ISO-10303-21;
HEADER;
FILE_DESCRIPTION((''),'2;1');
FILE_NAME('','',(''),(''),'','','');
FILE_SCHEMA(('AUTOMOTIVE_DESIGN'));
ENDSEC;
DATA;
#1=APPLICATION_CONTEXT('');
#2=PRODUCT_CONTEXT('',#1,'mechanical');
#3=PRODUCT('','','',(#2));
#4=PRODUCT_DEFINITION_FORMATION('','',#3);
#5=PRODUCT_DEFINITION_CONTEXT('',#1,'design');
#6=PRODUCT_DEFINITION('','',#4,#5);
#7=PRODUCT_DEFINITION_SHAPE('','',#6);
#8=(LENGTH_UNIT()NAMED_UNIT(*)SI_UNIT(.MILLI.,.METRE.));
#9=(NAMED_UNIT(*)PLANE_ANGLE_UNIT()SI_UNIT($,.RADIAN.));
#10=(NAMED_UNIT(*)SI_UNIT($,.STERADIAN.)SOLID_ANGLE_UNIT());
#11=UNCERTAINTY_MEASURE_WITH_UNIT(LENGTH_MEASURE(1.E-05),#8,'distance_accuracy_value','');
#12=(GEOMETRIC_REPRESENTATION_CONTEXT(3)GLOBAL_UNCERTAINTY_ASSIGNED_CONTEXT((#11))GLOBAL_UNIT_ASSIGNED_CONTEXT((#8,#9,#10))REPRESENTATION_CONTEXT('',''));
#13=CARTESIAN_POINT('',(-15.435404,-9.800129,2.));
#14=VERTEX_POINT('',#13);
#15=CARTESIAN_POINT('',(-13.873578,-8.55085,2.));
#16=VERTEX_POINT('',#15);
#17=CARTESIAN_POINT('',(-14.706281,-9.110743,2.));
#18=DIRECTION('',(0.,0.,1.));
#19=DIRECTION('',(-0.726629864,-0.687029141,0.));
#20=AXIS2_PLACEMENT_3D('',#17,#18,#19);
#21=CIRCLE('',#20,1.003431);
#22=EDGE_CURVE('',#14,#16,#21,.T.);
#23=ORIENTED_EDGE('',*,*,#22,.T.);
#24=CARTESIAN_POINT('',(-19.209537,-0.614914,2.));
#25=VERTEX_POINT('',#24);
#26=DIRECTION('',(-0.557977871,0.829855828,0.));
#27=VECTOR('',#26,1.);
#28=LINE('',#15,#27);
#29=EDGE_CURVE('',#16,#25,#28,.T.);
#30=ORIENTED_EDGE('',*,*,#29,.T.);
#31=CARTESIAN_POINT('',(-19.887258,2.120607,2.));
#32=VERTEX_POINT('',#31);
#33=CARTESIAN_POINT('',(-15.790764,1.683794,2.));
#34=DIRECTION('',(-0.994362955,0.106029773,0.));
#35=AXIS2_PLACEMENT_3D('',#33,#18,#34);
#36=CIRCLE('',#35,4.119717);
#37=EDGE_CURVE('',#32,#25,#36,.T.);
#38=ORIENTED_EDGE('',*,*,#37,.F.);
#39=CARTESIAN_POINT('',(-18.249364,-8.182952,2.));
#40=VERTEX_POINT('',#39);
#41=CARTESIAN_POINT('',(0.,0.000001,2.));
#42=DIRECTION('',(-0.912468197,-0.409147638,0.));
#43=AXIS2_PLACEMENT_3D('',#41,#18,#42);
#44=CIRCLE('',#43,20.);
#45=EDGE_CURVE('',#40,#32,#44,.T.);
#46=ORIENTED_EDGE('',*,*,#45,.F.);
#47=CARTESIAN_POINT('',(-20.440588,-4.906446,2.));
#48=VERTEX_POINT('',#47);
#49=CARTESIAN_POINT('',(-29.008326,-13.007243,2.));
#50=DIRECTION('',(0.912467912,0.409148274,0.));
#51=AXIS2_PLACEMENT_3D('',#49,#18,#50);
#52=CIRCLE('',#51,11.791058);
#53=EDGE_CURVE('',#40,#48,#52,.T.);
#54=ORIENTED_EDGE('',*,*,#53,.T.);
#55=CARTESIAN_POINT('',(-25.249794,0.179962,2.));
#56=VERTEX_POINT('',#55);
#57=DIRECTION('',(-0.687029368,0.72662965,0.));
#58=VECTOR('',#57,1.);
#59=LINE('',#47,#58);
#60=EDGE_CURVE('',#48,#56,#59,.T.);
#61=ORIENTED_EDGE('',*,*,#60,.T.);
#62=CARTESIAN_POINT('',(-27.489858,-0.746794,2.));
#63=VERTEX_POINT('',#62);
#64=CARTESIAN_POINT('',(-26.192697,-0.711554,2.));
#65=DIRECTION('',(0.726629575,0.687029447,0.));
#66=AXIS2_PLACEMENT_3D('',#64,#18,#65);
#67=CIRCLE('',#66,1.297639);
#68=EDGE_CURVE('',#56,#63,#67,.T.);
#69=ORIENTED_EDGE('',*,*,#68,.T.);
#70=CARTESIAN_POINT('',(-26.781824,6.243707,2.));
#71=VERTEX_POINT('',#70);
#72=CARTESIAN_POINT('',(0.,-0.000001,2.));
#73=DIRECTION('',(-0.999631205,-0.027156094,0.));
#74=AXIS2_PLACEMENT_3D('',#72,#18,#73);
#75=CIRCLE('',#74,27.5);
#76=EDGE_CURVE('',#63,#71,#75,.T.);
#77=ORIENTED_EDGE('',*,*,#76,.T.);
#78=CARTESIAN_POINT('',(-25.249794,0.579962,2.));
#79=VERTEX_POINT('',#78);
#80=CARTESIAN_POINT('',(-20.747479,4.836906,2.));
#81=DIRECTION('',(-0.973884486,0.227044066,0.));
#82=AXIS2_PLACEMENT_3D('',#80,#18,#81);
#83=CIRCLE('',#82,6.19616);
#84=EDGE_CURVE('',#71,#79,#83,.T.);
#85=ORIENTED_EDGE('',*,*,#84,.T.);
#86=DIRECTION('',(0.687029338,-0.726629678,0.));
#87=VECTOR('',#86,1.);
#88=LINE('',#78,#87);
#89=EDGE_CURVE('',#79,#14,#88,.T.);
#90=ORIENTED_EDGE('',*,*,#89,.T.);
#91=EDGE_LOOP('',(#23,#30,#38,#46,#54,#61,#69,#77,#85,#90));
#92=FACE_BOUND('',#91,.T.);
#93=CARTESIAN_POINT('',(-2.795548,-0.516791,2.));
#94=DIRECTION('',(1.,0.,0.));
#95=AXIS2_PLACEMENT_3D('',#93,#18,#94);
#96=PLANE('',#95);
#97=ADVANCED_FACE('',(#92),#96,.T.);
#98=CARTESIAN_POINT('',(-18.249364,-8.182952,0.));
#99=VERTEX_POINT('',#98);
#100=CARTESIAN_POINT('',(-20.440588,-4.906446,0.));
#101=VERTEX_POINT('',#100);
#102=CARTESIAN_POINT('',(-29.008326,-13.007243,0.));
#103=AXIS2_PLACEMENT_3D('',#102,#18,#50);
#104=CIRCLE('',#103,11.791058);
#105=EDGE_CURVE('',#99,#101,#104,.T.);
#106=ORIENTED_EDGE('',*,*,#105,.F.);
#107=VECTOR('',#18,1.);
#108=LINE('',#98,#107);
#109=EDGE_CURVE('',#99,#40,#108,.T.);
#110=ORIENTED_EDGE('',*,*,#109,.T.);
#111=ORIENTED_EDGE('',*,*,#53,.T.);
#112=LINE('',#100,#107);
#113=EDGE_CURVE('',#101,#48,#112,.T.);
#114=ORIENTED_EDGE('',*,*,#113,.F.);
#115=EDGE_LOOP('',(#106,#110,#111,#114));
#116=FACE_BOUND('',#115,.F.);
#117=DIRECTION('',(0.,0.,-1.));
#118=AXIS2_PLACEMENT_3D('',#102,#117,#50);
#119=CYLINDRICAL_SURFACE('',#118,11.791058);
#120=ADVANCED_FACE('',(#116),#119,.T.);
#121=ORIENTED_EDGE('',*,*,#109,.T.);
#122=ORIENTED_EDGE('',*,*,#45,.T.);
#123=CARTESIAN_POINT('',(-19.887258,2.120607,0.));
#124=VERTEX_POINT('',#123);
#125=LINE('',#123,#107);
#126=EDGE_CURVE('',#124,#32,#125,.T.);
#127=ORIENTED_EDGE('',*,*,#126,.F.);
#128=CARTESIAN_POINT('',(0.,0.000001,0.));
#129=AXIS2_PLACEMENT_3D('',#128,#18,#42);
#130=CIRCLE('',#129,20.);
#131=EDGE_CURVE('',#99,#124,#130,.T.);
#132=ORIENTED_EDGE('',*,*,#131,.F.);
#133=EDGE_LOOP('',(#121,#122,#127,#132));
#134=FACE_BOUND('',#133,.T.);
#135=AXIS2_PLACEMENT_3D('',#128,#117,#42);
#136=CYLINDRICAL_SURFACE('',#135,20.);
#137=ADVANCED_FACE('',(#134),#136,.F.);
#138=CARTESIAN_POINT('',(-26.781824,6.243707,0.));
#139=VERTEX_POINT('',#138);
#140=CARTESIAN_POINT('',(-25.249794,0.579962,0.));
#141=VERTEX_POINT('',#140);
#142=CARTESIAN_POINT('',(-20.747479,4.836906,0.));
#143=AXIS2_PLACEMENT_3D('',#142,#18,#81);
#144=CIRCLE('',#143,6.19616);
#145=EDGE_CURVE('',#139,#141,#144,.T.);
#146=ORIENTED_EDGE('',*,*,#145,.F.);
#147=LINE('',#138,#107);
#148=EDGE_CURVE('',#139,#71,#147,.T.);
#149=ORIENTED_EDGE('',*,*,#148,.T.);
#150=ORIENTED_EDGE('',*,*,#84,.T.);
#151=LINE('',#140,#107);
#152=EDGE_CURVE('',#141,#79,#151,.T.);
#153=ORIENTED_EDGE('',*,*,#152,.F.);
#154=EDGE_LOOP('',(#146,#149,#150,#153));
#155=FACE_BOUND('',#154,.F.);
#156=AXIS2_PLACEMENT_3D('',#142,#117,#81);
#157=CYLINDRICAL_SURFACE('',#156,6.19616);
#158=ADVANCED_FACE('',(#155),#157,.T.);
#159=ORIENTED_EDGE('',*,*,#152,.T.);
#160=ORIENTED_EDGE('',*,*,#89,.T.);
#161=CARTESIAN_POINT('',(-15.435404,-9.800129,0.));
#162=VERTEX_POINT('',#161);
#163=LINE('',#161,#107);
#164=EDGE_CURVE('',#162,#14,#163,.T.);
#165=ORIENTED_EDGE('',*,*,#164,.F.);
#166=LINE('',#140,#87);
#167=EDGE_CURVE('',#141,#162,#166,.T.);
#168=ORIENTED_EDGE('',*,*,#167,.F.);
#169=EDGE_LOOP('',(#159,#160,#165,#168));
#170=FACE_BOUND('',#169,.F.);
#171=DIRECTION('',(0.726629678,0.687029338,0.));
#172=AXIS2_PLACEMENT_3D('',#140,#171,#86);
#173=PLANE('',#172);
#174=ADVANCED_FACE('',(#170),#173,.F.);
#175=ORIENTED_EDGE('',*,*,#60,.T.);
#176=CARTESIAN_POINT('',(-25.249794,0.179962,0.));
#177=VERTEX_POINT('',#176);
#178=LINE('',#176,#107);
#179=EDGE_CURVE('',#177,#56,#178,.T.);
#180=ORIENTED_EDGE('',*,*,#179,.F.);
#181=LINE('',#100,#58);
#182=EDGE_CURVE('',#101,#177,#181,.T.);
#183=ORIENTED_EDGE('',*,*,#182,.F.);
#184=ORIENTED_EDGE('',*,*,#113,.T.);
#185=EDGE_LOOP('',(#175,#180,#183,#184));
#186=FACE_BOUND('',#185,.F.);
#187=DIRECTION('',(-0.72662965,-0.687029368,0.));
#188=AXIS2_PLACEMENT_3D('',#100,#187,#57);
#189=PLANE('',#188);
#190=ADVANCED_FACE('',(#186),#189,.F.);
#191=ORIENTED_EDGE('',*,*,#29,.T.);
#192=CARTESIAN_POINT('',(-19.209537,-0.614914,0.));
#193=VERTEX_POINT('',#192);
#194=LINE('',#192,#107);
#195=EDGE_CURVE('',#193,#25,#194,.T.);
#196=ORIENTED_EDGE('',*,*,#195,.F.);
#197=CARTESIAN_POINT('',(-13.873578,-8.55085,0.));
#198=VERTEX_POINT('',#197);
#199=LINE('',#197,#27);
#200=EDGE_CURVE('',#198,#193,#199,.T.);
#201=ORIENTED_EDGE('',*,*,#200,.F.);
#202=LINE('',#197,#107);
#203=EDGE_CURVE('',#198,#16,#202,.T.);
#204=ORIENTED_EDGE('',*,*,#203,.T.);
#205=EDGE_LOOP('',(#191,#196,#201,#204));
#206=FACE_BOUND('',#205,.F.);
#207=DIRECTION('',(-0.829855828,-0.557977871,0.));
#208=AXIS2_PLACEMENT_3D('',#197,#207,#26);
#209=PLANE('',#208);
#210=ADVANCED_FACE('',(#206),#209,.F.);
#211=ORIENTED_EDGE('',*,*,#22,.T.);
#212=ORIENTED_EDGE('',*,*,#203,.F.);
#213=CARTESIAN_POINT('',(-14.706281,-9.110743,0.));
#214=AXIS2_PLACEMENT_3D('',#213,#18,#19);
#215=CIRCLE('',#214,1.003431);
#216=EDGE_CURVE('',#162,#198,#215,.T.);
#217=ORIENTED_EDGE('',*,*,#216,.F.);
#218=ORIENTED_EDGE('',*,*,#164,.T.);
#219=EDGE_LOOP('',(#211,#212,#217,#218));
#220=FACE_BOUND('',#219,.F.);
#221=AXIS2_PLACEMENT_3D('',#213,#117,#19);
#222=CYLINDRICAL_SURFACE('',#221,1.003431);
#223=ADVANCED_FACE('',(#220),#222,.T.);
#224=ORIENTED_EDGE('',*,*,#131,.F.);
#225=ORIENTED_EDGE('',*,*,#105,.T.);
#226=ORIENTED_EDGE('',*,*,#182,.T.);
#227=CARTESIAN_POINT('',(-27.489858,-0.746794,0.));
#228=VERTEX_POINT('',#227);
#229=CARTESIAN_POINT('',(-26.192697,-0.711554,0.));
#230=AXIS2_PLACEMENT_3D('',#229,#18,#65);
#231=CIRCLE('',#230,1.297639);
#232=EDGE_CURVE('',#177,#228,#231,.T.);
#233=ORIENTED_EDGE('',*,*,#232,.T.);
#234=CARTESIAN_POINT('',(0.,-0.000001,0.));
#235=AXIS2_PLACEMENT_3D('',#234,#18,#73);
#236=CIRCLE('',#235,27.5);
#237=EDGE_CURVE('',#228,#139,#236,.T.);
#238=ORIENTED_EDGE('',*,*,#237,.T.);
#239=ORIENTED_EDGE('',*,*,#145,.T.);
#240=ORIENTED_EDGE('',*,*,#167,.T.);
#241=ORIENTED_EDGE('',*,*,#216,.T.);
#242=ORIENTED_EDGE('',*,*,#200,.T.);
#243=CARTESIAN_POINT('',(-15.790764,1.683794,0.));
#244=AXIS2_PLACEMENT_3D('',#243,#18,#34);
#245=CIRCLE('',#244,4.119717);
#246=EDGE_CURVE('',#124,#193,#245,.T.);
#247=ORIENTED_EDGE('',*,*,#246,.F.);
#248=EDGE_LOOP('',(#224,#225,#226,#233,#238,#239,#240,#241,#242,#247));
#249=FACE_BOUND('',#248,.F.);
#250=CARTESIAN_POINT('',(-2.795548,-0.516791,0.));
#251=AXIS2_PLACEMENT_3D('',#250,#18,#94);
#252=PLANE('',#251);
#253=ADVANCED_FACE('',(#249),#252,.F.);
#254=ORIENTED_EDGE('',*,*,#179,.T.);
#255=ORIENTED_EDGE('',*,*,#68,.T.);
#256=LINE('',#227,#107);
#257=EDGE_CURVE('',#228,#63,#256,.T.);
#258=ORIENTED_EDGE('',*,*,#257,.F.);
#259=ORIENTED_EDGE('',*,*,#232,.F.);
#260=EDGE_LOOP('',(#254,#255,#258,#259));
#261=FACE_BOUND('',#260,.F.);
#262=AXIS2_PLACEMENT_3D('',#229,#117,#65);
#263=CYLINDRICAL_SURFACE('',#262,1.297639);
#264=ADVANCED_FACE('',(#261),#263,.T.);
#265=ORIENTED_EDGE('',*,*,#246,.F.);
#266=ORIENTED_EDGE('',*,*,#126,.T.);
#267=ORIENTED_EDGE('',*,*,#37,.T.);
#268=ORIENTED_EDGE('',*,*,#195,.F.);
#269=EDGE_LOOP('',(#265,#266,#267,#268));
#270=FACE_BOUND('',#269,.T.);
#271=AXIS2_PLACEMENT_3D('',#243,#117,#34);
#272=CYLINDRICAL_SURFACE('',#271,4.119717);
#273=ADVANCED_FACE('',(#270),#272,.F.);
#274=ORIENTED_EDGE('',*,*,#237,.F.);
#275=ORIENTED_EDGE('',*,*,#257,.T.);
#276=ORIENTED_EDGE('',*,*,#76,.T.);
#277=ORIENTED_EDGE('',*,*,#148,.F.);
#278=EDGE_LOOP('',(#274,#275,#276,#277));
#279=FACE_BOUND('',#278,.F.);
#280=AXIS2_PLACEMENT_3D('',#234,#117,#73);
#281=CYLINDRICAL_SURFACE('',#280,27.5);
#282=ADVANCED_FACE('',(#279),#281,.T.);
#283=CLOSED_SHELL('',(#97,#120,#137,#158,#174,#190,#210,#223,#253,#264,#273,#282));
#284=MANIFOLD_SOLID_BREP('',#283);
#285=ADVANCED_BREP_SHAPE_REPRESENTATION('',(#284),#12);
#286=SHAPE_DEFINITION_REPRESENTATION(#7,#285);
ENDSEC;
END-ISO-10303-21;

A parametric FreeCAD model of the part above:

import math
import FreeCAD as App
import Part
import Sketcher
from FreeCAD import Vector

doc = App.newDocument("Part")
body = doc.addObject("PartDesign::Body", "Body")

# Sketch on XY plane
sketch1 = body.newObject("Sketcher::SketchObject", "Sketch")
sketch1.AttachmentSupport = (doc.getObject("XY_Plane"), [""])
sketch1.MapMode = "FlatFace"
sketch1.addGeometry(Part.ArcOfCircle(Part.Circle(Vector(0, -0.000001, 0), Vector(0, 0, 1), 27.5), math.radians(-178.443879), math.radians(166.876901)), False)
sketch1.addGeometry(Part.ArcOfCircle(Part.Circle(Vector(-20.747479, 4.836906, 0), Vector(0, 0, 1), 6.19616), math.radians(166.876894), math.radians(223.395406)), False)
sketch1.addGeometry(Part.LineSegment(Vector(-25.249794, 0.579962, 0), Vector(-15.435404, -9.800129, 0)), False)
sketch1.addGeometry(Part.ArcOfCircle(Part.Circle(Vector(-14.706281, -9.110743, 0), Vector(0, 0, 1), 1.003431), math.radians(-136.604603), math.radians(33.916085)), False)
sketch1.addGeometry(Part.LineSegment(Vector(-13.873578, -8.55085, 0), Vector(-19.209537, -0.614914, 0)), False)
sketch1.addGeometry(Part.ArcOfCircle(Part.Circle(Vector(-15.790764, 1.683794, 0), Vector(0, 0, 1), 4.119717), math.radians(173.913501), math.radians(213.916023)), False)
sketch1.addGeometry(Part.ArcOfCircle(Part.Circle(Vector(0, 0.000001, 0), Vector(0, 0, 1), 20), math.radians(-155.848698), math.radians(173.913469)), False)
sketch1.addGeometry(Part.ArcOfCircle(Part.Circle(Vector(-29.008326, -13.007243, 0), Vector(0, 0, 1), 11.791058), math.radians(24.151342), math.radians(43.395375)), False)
sketch1.addGeometry(Part.LineSegment(Vector(-20.440588, -4.906446, 0), Vector(-25.249794, 0.179962, 0)), False)
sketch1.addGeometry(Part.ArcOfCircle(Part.Circle(Vector(-26.192697, -0.711554, 0), Vector(0, 0, 1), 1.297639), math.radians(43.395421), math.radians(181.556152)), False)
sketch1.addConstraint(Sketcher.Constraint("Coincident", 0, 2, 1, 1))
sketch1.addConstraint(Sketcher.Constraint("Coincident", 1, 2, 2, 1))
sketch1.addConstraint(Sketcher.Constraint("Coincident", 2, 2, 3, 1))
sketch1.addConstraint(Sketcher.Constraint("Coincident", 3, 2, 4, 1))
sketch1.addConstraint(Sketcher.Constraint("Coincident", 4, 2, 5, 2))
sketch1.addConstraint(Sketcher.Constraint("Coincident", 5, 1, 6, 2))
sketch1.addConstraint(Sketcher.Constraint("Coincident", 6, 1, 7, 1))
sketch1.addConstraint(Sketcher.Constraint("Coincident", 7, 2, 8, 1))
sketch1.addConstraint(Sketcher.Constraint("Coincident", 8, 2, 9, 1))
sketch1.addConstraint(Sketcher.Constraint("Coincident", 9, 2, 0, 1))
sketch1.addConstraint(Sketcher.Constraint("Coincident", 0, 3, -1, 1))
sketch1.addConstraint(Sketcher.Constraint("Coincident", 6, 3, -1, 1))
sketch1.addConstraint(Sketcher.Constraint("Radius", 6, 20.0))
sketch1.addConstraint(Sketcher.Constraint("Radius", 0, 27.5))
sketch1.addConstraint(Sketcher.Constraint("Distance", 8, 7.000001))
sketch1.addConstraint(Sketcher.Constraint("DistanceY", 8, 2, 1, 2, 0.4))
sketch1.addConstraint(Sketcher.Constraint("Radius", 1, 6.19616))
sketch1.addConstraint(Sketcher.Constraint("Radius", 3, 1.003431))
sketch1.addConstraint(Sketcher.Constraint("Radius", 9, 1.297639))
sketch1.addConstraint(Sketcher.Constraint("Radius", 5, 4.119717))
sketch1.addConstraint(Sketcher.Constraint("Radius", 7, 11.791058))
sketch1.addConstraint(Sketcher.Constraint("DistanceX", 1, 3, 3, 3, 6.041198))
sketch1.addConstraint(Sketcher.Constraint("DistanceY", 7, 3, 3, 3, 3.8965))
sketch1.addConstraint(Sketcher.Constraint("DistanceY", 1, 3, 0, 2, 1.406801))
sketch1.addConstraint(Sketcher.Constraint("DistanceX", 7, 3, 0, 2, 2.226502))
sketch1.addConstraint(Sketcher.Constraint("DistanceY", 5, 1, 1, 3, 2.716299))
sketch1.addConstraint(Sketcher.Constraint("DistanceY", 3, 2, 6, 1, 0.367898))
sketch1.addConstraint(Sketcher.Constraint("DistanceX", 6, 1, 5, 3, 2.4586))
sketch1.addConstraint(Sketcher.Constraint("DistanceY", 9, 2, 0, 2, 6.990501))
sketch1.addConstraint(Sketcher.Constraint("DistanceX", 9, 2, 5, 1, 7.6026))
sketch1.addConstraint(Sketcher.Constraint("Distance", 4, 9.56303))
sketch1.addConstraint(Sketcher.Constraint("DistanceY", 2, 2, -1, 1, 9.800129))
sketch1.addConstraint(Sketcher.Constraint("DistanceX", 3, 2, -1, 1, 13.873578))
sketch1.addConstraint(Sketcher.Constraint("DistanceX", 7, 2, -1, 1, 20.440588))
sketch1.addConstraint(Sketcher.Constraint("DistanceY", 9, 3, 1, 3, 5.54846))
pad1 = body.newObject("PartDesign::Pad", "Pad")
pad1.Profile = sketch1
pad1.Length = 2

doc.recompute()
